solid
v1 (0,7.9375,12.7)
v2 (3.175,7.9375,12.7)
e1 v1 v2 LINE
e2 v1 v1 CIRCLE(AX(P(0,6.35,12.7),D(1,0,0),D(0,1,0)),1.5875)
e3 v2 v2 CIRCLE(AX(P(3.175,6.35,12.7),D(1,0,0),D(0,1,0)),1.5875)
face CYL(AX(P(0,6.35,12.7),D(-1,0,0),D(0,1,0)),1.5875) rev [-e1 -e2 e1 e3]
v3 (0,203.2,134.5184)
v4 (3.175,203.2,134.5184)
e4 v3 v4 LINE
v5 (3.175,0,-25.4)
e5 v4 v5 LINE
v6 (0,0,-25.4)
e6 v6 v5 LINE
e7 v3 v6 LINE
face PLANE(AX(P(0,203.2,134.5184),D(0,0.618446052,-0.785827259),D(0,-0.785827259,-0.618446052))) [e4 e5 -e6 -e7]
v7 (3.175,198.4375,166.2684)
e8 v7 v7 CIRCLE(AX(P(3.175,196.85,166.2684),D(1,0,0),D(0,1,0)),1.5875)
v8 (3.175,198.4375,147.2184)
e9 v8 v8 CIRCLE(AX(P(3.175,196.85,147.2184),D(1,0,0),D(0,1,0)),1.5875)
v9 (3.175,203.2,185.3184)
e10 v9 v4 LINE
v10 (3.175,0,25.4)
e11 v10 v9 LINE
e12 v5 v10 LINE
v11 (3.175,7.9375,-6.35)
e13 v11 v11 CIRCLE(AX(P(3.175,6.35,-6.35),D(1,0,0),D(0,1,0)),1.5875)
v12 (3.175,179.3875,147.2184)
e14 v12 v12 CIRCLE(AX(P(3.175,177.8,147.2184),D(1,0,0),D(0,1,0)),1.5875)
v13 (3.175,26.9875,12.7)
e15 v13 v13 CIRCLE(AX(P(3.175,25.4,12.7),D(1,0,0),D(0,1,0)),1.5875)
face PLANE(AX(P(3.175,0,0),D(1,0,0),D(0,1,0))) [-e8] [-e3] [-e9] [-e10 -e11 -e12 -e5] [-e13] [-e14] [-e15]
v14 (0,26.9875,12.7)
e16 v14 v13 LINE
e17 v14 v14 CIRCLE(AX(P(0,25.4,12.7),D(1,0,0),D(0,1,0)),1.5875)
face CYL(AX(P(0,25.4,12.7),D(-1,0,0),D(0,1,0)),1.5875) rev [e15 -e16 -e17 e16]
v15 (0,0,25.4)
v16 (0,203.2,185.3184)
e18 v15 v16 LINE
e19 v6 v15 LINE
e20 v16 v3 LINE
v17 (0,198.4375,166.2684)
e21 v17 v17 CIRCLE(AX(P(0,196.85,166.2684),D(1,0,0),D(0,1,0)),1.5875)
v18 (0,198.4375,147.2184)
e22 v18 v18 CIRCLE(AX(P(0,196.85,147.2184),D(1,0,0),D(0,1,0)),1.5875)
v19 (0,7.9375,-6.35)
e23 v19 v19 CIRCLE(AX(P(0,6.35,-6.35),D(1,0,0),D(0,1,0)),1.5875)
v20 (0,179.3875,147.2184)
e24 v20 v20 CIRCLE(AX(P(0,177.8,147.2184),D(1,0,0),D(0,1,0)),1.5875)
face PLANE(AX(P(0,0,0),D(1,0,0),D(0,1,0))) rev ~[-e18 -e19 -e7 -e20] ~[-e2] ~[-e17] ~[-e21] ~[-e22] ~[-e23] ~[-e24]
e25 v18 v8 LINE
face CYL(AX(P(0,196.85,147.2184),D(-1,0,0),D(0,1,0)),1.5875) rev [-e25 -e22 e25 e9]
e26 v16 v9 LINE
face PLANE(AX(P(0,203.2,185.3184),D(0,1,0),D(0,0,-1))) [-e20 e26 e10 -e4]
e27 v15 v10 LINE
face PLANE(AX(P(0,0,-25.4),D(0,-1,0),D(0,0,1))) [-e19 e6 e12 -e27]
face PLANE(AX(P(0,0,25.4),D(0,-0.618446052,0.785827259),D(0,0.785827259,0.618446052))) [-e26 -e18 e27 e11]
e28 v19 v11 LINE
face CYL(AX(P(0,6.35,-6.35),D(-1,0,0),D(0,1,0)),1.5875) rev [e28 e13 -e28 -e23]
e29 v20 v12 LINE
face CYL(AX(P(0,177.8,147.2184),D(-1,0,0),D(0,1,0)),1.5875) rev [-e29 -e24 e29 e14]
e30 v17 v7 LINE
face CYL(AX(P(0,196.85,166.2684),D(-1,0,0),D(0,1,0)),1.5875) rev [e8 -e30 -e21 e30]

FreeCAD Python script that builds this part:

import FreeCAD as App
import Part
import Sketcher

V = App.Vector
Q = App.Units.Quantity

doc = App.newDocument("Part")
body = doc.addObject("PartDesign::Body", "Body")

sketch1 = body.newObject("Sketcher::SketchObject", "Sketch")
sketch1.AttachmentSupport = (doc.getObject("YZ_Plane"), [""])
sketch1.MapMode = "FlatFace"
sketch1.addGeometry([
    Part.LineSegment(V(203.2, 134.5, 0), V(203.2, 185.3, 0)),
    Part.LineSegment(V(203.2, 185.3, 0), V(0, 25.4, 0)),
    Part.LineSegment(V(0, 25.4, 0), V(0, -25.4, 0)),
    Part.LineSegment(V(0, -25.4, 0), V(203.2, 134.5, 0)),
    Part.Circle(V(6.3, -6.3, 0), V(0, 0, 1), 1.6),
    Part.Circle(V(6.3, 12.7, 0), V(0, 0, 1), 1.6),
    Part.Circle(V(25.4, 12.7, 0), V(0, 0, 1), 1.6),
    Part.Circle(V(177.8, 147.2, 0), V(0, 0, 1), 1.6),
    Part.Circle(V(196.8, 147.2, 0), V(0, 0, 1), 1.6),
    Part.Circle(V(196.8, 166.3, 0), V(0, 0, 1), 1.6),
], False)
sketch1.addConstraint([
    Sketcher.Constraint("Coincident", 0, 2, 1, 1),
    Sketcher.Constraint("Coincident", 1, 2, 2, 1),
    Sketcher.Constraint("Coincident", 2, 2, 3, 1),
    Sketcher.Constraint("Coincident", 3, 2, 0, 1),
    Sketcher.Constraint("Vertical", 0),
    Sketcher.Constraint("Vertical", 2),
    Sketcher.Constraint("Equal", 4, 5),
    Sketcher.Constraint("Equal", 5, 6),
    Sketcher.Constraint("Equal", 6, 7),
    Sketcher.Constraint("Equal", 7, 8),
    Sketcher.Constraint("Equal", 8, 9),
    Sketcher.Constraint("Symmetric", 1, 2, 2, 2, -1, 1),
    Sketcher.Constraint("Parallel", 1, 3),
    Sketcher.Constraint("Horizontal", 5, 3, 6, 3),
    Sketcher.Constraint("Horizontal", 7, 3, 8, 3),
    Sketcher.Constraint("Vertical", 4, 3, 5, 3),
    Sketcher.Constraint("Vertical", 8, 3, 9, 3),
    Sketcher.Constraint("DistanceY", 0, 1, 0, 2, Q("2 in")),
    Sketcher.Constraint("Diameter", 4, Q("0.125 in")),
    Sketcher.Constraint("DistanceX", 5, 3, 8, 3, Q("7.5 in")),
    Sketcher.Constraint("DistanceX", -1, 1, 4, 3, Q("0.25 in")),
    Sketcher.Constraint("DistanceY", 4, 3, -1, 1, Q("0.25 in")),
    Sketcher.Constraint("DistanceY", 4, 3, 5, 3, Q("0.75 in")),
    Sketcher.Constraint("DistanceX", 5, 3, 6, 3, Q("0.75 in")),
    Sketcher.Constraint("DistanceX", 7, 3, 8, 3, Q("0.75 in")),
    Sketcher.Constraint("DistanceY", 8, 3, 9, 3, Q("0.75 in")),
    Sketcher.Constraint("DistanceX", 9, 3, 0, 2, Q("0.25 in")),
    Sketcher.Constraint("DistanceY", 9, 3, 0, 2, Q("0.75 in")),
    Sketcher.Constraint("DistanceY", -1, 1, 7, 3, Q("5.796 in")),
])
pad1 = body.newObject("PartDesign::Pad", "Pad")
pad1.Profile = sketch1
pad1.Length = Q("0.125 in")

doc.recompute()
